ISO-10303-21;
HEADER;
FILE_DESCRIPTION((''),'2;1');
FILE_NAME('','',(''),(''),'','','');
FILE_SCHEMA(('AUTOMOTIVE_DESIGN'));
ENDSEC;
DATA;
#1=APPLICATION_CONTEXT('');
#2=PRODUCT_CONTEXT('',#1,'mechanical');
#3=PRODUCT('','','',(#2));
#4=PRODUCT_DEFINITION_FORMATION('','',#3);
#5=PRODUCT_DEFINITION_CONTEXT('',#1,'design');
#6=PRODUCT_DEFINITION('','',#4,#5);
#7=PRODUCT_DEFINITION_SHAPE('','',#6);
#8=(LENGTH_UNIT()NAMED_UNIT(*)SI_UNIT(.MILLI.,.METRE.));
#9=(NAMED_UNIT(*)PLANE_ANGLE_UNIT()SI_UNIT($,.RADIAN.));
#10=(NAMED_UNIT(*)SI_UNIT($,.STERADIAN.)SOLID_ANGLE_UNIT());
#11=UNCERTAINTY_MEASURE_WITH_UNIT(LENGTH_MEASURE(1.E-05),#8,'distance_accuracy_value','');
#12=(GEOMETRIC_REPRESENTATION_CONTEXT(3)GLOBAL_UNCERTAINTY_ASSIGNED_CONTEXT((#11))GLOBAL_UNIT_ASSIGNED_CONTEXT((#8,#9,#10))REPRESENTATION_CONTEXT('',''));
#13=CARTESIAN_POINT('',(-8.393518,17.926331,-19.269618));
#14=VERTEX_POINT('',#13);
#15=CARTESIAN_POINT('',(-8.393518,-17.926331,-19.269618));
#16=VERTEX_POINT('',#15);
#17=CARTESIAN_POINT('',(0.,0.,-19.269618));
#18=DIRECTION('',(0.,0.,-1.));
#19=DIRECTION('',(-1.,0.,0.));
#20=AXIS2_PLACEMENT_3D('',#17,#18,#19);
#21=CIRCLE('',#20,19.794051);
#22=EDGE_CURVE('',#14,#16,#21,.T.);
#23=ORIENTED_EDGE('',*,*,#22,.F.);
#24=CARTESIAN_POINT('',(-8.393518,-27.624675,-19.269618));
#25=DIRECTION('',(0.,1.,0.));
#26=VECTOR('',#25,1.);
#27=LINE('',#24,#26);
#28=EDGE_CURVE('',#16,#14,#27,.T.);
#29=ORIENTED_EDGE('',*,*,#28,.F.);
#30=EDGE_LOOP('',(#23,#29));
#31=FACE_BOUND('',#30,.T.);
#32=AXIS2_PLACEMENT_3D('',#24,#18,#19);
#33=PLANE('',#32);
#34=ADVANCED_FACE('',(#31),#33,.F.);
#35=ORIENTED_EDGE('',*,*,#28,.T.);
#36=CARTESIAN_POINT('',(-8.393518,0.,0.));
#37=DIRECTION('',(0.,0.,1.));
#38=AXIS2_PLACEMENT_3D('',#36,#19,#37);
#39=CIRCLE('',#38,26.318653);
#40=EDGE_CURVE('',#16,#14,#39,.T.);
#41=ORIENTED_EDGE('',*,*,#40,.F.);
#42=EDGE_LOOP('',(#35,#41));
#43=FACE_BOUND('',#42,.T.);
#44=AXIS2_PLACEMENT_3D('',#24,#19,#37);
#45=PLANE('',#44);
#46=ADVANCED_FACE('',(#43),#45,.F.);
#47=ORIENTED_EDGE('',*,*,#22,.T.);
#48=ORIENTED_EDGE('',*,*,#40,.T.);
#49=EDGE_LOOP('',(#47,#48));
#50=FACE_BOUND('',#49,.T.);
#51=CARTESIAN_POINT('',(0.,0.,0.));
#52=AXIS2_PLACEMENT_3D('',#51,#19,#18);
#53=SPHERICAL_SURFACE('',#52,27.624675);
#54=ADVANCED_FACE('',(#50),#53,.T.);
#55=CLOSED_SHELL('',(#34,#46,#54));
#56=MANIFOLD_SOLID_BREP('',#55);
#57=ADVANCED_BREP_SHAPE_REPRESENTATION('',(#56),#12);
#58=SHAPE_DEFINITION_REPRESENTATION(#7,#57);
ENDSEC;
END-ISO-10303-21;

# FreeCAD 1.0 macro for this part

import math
import FreeCAD as App
import Part
import Sketcher
from FreeCAD import Vector


def add_polygon(sketch, points):
    """Adds a closed chain of lines whose ends are joined by coincident constraints."""
    first, n = sketch.GeometryCount, len(points)
    for a, b in zip(points, points[1:] + points[:1]):
        sketch.addGeometry(Part.LineSegment(App.Vector(*a, 0), App.Vector(*b, 0)), False)
    for i in range(n):
        sketch.addConstraint(Sketcher.Constraint("Coincident", first + i, 2, first + (i + 1) % n, 1))

doc = App.newDocument("Part")
body = doc.addObject("PartDesign::Body", "Body")

sketch1 = body.newObject("Sketcher::SketchObject", "Sketch")
sketch1.AttachmentSupport = (doc.getObject("XZ_Plane"), [""])
sketch1.MapMode = "FlatFace"
sketch1.addGeometry([
    Part.LineSegment(Vector(-28, 0, 0), Vector(28, 0, 0)),
    Part.ArcOfCircle(Part.Circle(Vector(0, 0, 0), Vector(0, 0, 1), 28), math.radians(180), math.radians(360)),
], False)
sketch1.addConstraint([
    Sketcher.Constraint("Coincident", 0, 1, 1, 1),
    Sketcher.Constraint("Coincident", 1, 2, 0, 2),
    Sketcher.Constraint("Horizontal", 0),
    Sketcher.Constraint("Coincident", 1, 3, -1, 1),
    Sketcher.Constraint("PointOnObject", 0, 1, -1),
    Sketcher.Constraint("Radius", 1, 27.624675),
])
revolution = body.newObject("PartDesign::Revolution", "Revolution")
revolution.Profile = sketch1
revolution.ReferenceAxis = (sketch1, ["H_Axis"])
revolution.Angle = 360

sketch2 = body.newObject("Sketcher::SketchObject", "Sketch001")
sketch2.AttachmentSupport = (doc.getObject("XZ_Plane"), [""])
sketch2.MapMode = "FlatFace"
add_polygon(sketch2, [(-8, -19), (-8, 62), (67, 62), (67, -19)])
sketch2.addConstraint([
    Sketcher.Constraint("Vertical", 0),
    Sketcher.Constraint("Horizontal", 1),
    Sketcher.Constraint("Vertical", 2),
    Sketcher.Constraint("Horizontal", 3),
    Sketcher.Constraint("DistanceX", 1, 1, 1, 2, 75.893428),
    Sketcher.Constraint("DistanceY", 0, 1, 0, 2, 81.233977),
    Sketcher.Constraint("DistanceY", -1, 1, 0, 2, 61.964359),
    Sketcher.Constraint("DistanceX", -1, 1, 1, 2, 67.49991),
])
pocket1 = body.newObject("PartDesign::Pocket", "Pocket")
pocket1.Profile = sketch2
pocket1.Type = "ThroughAll"
pocket1.Midplane = True

doc.recompute()
